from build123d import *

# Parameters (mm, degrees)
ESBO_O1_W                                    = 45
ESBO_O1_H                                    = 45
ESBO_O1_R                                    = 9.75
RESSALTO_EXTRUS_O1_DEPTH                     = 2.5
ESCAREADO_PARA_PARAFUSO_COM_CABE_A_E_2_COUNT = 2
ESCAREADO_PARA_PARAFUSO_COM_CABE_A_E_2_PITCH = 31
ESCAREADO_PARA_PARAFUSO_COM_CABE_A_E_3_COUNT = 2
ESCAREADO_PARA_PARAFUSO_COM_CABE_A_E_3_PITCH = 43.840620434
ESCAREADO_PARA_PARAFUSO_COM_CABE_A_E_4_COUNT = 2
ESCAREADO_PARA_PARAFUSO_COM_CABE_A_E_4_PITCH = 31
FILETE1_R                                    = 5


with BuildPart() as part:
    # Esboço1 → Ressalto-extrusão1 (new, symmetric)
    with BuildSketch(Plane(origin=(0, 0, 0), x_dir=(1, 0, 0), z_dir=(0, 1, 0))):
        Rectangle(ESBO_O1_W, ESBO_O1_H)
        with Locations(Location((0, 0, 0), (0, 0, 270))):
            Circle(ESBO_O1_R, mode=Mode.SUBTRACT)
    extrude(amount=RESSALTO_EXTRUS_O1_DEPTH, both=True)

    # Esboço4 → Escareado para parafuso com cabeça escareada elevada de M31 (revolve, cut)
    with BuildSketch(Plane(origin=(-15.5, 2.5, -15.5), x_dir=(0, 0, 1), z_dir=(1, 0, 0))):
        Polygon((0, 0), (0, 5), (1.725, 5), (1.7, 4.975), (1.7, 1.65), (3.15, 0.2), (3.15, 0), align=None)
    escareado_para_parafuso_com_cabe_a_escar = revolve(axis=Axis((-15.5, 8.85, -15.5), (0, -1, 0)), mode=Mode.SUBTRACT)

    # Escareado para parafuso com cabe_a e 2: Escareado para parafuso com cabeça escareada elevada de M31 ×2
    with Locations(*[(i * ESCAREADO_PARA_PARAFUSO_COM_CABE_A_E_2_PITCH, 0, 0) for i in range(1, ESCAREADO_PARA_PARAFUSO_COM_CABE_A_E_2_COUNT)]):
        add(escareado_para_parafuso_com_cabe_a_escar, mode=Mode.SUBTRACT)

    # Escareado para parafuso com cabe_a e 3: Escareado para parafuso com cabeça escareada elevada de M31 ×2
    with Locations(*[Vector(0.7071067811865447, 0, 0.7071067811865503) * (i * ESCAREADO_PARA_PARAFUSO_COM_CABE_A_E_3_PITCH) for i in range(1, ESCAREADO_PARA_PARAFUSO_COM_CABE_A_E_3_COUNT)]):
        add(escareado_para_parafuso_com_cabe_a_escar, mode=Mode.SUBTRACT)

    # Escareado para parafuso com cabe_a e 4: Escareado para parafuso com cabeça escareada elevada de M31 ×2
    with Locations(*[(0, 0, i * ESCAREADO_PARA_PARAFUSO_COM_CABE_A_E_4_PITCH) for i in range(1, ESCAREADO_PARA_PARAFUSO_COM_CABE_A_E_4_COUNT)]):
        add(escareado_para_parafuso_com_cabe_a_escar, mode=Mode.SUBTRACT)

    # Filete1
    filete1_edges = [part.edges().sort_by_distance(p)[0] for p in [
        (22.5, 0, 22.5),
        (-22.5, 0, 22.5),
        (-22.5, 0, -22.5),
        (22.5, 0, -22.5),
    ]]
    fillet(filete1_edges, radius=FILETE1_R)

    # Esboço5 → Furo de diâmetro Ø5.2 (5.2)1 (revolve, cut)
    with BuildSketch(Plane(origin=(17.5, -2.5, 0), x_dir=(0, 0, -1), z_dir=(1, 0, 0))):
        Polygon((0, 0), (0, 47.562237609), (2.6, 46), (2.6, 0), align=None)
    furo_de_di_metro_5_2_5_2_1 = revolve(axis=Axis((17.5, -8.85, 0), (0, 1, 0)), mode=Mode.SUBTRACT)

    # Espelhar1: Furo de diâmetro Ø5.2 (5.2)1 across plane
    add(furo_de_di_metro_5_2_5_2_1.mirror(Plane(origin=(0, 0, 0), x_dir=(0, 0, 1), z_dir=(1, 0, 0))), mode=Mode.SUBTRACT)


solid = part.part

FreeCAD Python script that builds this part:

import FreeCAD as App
import Part
import Sketcher
Q = App.Units.Quantity


def edges_at(feature, points):
    """Names of the edges that pass closest to the given points."""
    edges = feature.Shape.Edges
    near = lambda p: min(range(len(edges)), key=lambda i: edges[i].distToShape(Part.Vertex(*p))[0])
    return sorted({f"Edge{near(p) + 1}" for p in points})


def add_polygon(sketch, points):
    """Adds a closed chain of lines whose ends are joined by coincident constraints."""
    first, n = sketch.GeometryCount, len(points)
    for a, b in zip(points, points[1:] + points[:1]):
        sketch.addGeometry(Part.LineSegment(App.Vector(*a, 0), App.Vector(*b, 0)), False)
    for i in range(n):
        sketch.addConstraint(Sketcher.Constraint("Coincident", first + i, 2, first + (i + 1) % n, 1))

doc = App.newDocument("Part")
params = doc.addObject("Spreadsheet::Sheet", "Params")
for row, (alias, value) in enumerate([
    ("sketch1_diameter", "19.5 mm"),
    ("sketch1_width", "45 mm"),
    ("pad1_length", "5 mm"),
    ("sketch2_width", "5 mm"),
    ("sketch2_width2", "0.2 mm"),
    ("sketch2_height", "3.15 mm"),
    ("groove_angle", "360 deg"),
    ("linearpattern_pitch", "31 mm"),
    ("linearpattern2_pitch", "43.84062 mm"),
    ("linearpattern3_pitch", "31 mm"),
    ("fillet_radius", "5 mm"),
    ("sketch3_width", "46 mm"),
    ("sketch3_height", "2.6 mm"),
    ("groove2_angle", "360 deg"),
], start=1):
    params.set(f"A{row}", alias)
    params.set(f"B{row}", "=" + value)
    params.setAlias(f"B{row}", alias)

body = doc.addObject("PartDesign::Body", "Body")

# Sketch on XZ plane
sketch1 = body.newObject("Sketcher::SketchObject", "Sketch")
sketch1.AttachmentSupport = (doc.getObject("XZ_Plane"), [""])
sketch1.MapMode = "FlatFace"
add_polygon(sketch1, [(-22, -22), (-22, 22), (22, 22), (22, -22)])  # lines 0-3
sketch1.addGeometry(Part.Circle(App.Vector(0, 0, 0), App.Vector(0, 0, 1), 10), False)  # 4
sketch1.addConstraint([
    Sketcher.Constraint("Vertical", 0),
    Sketcher.Constraint("Horizontal", 1),
    Sketcher.Constraint("Vertical", 2),
    Sketcher.Constraint("Horizontal", 3),
    Sketcher.Constraint("Coincident", 4, 3, -1, 1),
    Sketcher.Constraint("Symmetric", 0, 2, 2, 2, -1, 1),
    Sketcher.Constraint("Equal", 3, 0),
    Sketcher.Constraint("Diameter", 4, Q("19.5 mm")),
    Sketcher.Constraint("DistanceX", 1, 1, 1, 2, Q("45 mm")),
])
sketch1.setExpression("Constraints[11]", "Params.sketch1_diameter")
sketch1.setExpression("Constraints[12]", "Params.sketch1_width")
pad1 = body.newObject("PartDesign::Pad", "Pad")
pad1.Profile = sketch1
pad1.setExpression("Length", "Params.pad1_length")
pad1.Midplane = True

# Sketch on YZ plane
sketch2 = body.newObject("Sketcher::SketchObject", "Sketch001")
sketch2.AttachmentSupport = (doc.getObject("YZ_Plane"), [""])
sketch2.MapMode = "FlatFace"
sketch2.AttachmentOffset = App.Placement(App.Vector(0, 0, -15.5), App.Rotation())
add_polygon(sketch2, [(-2.5, -15.5), (2.5, -15.5), (2.5, -12.35), (2.3, -12.35), (0.85, -13.8), (-2.475, -13.8), (-2.5, -13.775)])  # lines 0-6
sketch2.addGeometry(Part.LineSegment(App.Vector(2.5, -15.5, 0), App.Vector(-2.5, -15.5, 0)), True)  # axis
sketch2.addConstraint([
    Sketcher.Constraint("Horizontal", 0),
    Sketcher.Constraint("Vertical", 1),
    Sketcher.Constraint("Horizontal", 2),
    Sketcher.Constraint("Horizontal", 4),
    Sketcher.Constraint("Vertical", 6),
    Sketcher.Constraint("Horizontal", 7),
    Sketcher.Constraint("Coincident", 7, 1, 0, 2),
    Sketcher.Constraint("Perpendicular", 3, 5),
    Sketcher.Constraint("Vertical", 5, 2, 7, 2),
    Sketcher.Constraint("DistanceX", 0, 1, 0, 2, Q("5 mm")),
    Sketcher.Constraint("Angle", 3, Q("-135 deg")),
    Sketcher.Constraint("DistanceX", 2, 2, 2, 1, Q("0.2 mm")),
    Sketcher.Constraint("DistanceY", 1, 1, 1, 2, Q("3.15 mm")),
    Sketcher.Constraint("DistanceX", -1, 1, 0, 2, Q("2.5 mm")),
    Sketcher.Constraint("DistanceY", 0, 2, -1, 1, Q("15.5 mm")),
    Sketcher.Constraint("DistanceY", 3, 2, -1, 1, Q("13.8 mm")),
    Sketcher.Constraint("DistanceX", 4, 2, 4, 1, Q("3.325 mm")),
])
sketch2.setExpression("Constraints[16]", "Params.sketch2_width")
sketch2.setExpression("Constraints[18]", "Params.sketch2_width2")
sketch2.setExpression("Constraints[19]", "Params.sketch2_height")
groove = body.newObject("PartDesign::Groove", "Groove")
groove.Profile = sketch2
groove.ReferenceAxis = (sketch2, ["Axis0"])
groove.setExpression("Angle", "Params.groove_angle")
doc.recompute()

linearpattern = body.newObject("PartDesign::LinearPattern", "LinearPattern")
linearpattern.Originals = [groove]
linearpattern.Direction = (doc.getObject("X_Axis"), [""])
linearpattern.Mode = "offset"
linearpattern.setExpression("Offset", "Params.linearpattern_pitch")
linearpattern.Occurrences = 2
body.Tip = linearpattern
doc.recompute()

datumline = body.newObject("PartDesign::Line", "DatumLine")
datumline.Placement = App.Placement(App.Vector(0, 0, 0), App.Rotation(App.Vector(0, 0, 1), App.Vector(0.707106781, 0, 0.707106781)))
linearpattern2 = body.newObject("PartDesign::LinearPattern", "LinearPattern001")
linearpattern2.Originals = [groove]
linearpattern2.Direction = (datumline, [""])
linearpattern2.Mode = "offset"
linearpattern2.setExpression("Offset", "Params.linearpattern2_pitch")
linearpattern2.Occurrences = 2
body.Tip = linearpattern2
doc.recompute()

linearpattern3 = body.newObject("PartDesign::LinearPattern", "LinearPattern002")
linearpattern3.Originals = [groove]
linearpattern3.Direction = (doc.getObject("Z_Axis"), [""])
linearpattern3.Mode = "offset"
linearpattern3.setExpression("Offset", "Params.linearpattern3_pitch")
linearpattern3.Occurrences = 2
body.Tip = linearpattern3
doc.recompute()

fillet = body.newObject("PartDesign::Fillet", "Fillet")
fillet.Base = (linearpattern3, edges_at(linearpattern3, [
    (22.5, 0, 22.5),
    (-22.5, 0, 22.5),
    (-22.5, 0, -22.5),
    (22.5, 0, -22.5),
]))
fillet.setExpression("Radius", "Params.fillet_radius")

# Sketch on YZ plane
sketch3 = body.newObject("Sketcher::SketchObject", "Sketch002")
sketch3.AttachmentSupport = (doc.getObject("YZ_Plane"), [""])
sketch3.MapMode = "FlatFace"
sketch3.AttachmentOffset = App.Placement(App.Vector(0, 0, 17.5), App.Rotation())
add_polygon(sketch3, [(45.1, 0), (-2.5, 0), (-2.5, -2.6), (43.5, -2.6)])  # lines 0-3
sketch3.addConstraint([
    Sketcher.Constraint("Horizontal", 0),
    Sketcher.Constraint("Vertical", 1),
    Sketcher.Constraint("Horizontal", 2),
    Sketcher.Constraint("PointOnObject", 0, 2, -1),
    Sketcher.Constraint("DistanceX", 2, 1, 2, 2, Q("46 mm")),
    Sketcher.Constraint("Angle", 3, Q("59 deg")),
    Sketcher.Constraint("DistanceY", 1, 2, 1, 1, Q("2.6 mm")),
    Sketcher.Constraint("DistanceX", 0, 2, -1, 1, Q("2.5 mm")),
])
sketch3.setExpression("Constraints[8]", "Params.sketch3_width")
sketch3.setExpression("Constraints[10]", "Params.sketch3_height")
groove2 = body.newObject("PartDesign::Groove", "Groove001")
groove2.Profile = sketch3
groove2.ReferenceAxis = (sketch3, ["H_Axis"])
groove2.setExpression("Angle", "Params.groove2_angle")
doc.recompute()

mirrored = body.newObject("PartDesign::Mirrored", "Mirrored")
mirrored.Originals = [groove2]
mirrored.MirrorPlane = (doc.getObject("YZ_Plane"), [""])
body.Tip = mirrored

doc.recompute()
